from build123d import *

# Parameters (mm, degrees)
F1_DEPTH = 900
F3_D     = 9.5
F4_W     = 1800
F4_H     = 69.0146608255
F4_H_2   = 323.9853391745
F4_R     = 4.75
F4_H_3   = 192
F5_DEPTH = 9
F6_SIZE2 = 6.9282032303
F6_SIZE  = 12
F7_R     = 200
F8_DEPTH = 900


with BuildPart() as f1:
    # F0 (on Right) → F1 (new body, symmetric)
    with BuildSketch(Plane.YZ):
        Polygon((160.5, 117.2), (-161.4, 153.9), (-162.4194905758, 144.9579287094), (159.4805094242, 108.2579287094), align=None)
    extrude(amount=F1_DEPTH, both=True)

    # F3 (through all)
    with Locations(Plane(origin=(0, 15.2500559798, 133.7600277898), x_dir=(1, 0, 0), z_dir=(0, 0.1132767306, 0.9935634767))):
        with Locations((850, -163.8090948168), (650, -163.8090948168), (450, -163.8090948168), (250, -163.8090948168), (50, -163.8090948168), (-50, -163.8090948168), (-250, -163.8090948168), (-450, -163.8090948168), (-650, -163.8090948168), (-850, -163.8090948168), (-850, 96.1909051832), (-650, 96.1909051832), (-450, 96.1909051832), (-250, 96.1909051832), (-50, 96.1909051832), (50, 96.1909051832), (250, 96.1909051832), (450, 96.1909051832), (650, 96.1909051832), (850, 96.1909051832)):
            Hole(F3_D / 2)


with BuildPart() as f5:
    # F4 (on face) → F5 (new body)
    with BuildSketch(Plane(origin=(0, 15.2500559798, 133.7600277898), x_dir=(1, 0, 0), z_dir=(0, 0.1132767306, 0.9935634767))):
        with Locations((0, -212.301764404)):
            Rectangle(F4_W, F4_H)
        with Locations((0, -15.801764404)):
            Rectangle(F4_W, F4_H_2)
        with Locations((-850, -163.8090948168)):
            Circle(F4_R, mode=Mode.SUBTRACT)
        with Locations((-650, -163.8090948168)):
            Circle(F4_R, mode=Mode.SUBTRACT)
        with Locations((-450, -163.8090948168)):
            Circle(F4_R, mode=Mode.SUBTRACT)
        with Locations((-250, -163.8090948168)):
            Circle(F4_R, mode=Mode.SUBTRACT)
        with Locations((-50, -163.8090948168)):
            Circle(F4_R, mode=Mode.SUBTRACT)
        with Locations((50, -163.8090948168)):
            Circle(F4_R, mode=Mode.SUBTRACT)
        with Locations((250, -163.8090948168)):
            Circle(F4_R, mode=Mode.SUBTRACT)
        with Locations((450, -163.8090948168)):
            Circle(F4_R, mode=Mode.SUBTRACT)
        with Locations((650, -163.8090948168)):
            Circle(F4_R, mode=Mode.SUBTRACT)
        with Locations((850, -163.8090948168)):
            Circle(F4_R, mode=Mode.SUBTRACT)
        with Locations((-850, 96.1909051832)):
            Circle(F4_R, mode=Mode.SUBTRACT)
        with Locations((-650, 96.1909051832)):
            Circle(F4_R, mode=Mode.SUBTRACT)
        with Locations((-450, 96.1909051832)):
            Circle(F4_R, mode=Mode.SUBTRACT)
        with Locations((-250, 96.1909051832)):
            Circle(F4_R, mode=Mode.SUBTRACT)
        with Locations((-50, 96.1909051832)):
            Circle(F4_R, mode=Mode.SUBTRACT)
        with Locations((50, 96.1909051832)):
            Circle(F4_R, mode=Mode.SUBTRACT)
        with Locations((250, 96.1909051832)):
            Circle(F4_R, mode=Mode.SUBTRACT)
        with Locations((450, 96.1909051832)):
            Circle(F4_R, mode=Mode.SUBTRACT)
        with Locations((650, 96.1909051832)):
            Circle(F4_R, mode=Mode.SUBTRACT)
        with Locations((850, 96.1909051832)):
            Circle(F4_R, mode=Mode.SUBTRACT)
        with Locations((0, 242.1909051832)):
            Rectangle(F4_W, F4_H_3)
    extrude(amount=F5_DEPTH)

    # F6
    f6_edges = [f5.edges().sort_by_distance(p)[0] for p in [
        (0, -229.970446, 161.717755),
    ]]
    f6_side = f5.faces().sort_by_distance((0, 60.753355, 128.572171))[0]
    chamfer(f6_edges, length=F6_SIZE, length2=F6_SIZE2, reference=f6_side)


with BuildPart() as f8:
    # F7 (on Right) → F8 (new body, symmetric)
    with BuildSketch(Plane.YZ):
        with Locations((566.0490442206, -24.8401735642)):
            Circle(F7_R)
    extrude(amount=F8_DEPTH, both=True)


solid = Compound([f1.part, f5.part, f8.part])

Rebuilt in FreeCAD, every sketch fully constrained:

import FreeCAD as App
import Part
import Sketcher


def edges_at(feature, points):
    """Names of the edges that pass closest to the given points."""
    edges = feature.Shape.Edges
    near = lambda p: min(range(len(edges)), key=lambda i: edges[i].distToShape(Part.Vertex(*p))[0])
    return sorted({f"Edge{near(p) + 1}" for p in points})


def add_polygon(sketch, points):
    """Adds a closed chain of lines whose ends are joined by coincident constraints."""
    first, n = sketch.GeometryCount, len(points)
    for a, b in zip(points, points[1:] + points[:1]):
        sketch.addGeometry(Part.LineSegment(App.Vector(*a, 0), App.Vector(*b, 0)), False)
    for i in range(n):
        sketch.addConstraint(Sketcher.Constraint("Coincident", first + i, 2, first + (i + 1) % n, 1))

doc = App.newDocument("Part")
params = doc.addObject("Spreadsheet::Sheet", "Params")
for row, (alias, value) in enumerate([
    ("sketch1_length", "9 mm"),
    ("pad1_length", "1800 mm"),
    ("sketch2_diameter", "9.5 mm"),
    ("hole_diameter", "9.5 mm"),
    ("sketch3_diameter", "9.5 mm"),
    ("sketch3_width", "1800 mm"),
    ("sketch3_height", "585 mm"),
    ("pad2_length", "9 mm"),
    ("chamfer_size", "12 mm"),
    ("chamfer_size2", "6.928203 mm"),
    ("sketch4_diameter", "400 mm"),
    ("pad3_length", "1800 mm"),
], start=1):
    params.set(f"A{row}", alias)
    params.set(f"B{row}", "=" + value)
    params.setAlias(f"B{row}", alias)

body = doc.addObject("PartDesign::Body", "Body")

sketch1 = body.newObject("Sketcher::SketchObject", "Sketch")
sketch1.AttachmentSupport = (doc.getObject("YZ_Plane"), [""])
sketch1.MapMode = "FlatFace"
add_polygon(sketch1, [(160, 117), (-161, 154), (-162, 145), (159, 108)])
sketch1.addConstraint([
    Sketcher.Constraint("Perpendicular", 0, 1),
    Sketcher.Constraint("Perpendicular", 1, 2),
    Sketcher.Constraint("Perpendicular", 2, 3),
    Sketcher.Constraint("Distance", 1, 9.0),
    Sketcher.Constraint("DistanceX", 0, 2, -1, 1, 161.4),
    Sketcher.Constraint("DistanceY", -1, 1, 0, 2, 153.9),
    Sketcher.Constraint("DistanceX", -1, 1, 3, 2, 160.5),
    Sketcher.Constraint("DistanceY", -1, 1, 3, 2, 117.2),
])
sketch1.setExpression("Constraints[7]", "Params.sketch1_length")
pad1 = body.newObject("PartDesign::Pad", "Pad")
pad1.Profile = sketch1
pad1.setExpression("Length", "Params.pad1_length")
pad1.Midplane = True

sketch2 = body.newObject("Sketcher::SketchObject", "Sketch001")
sketch2.Placement = App.Placement(App.Vector(0, 15.250056, 133.760028), App.Rotation(App.Vector(1, 0, 0), App.Vector(0, 0.993563477, -0.113276731), App.Vector(0, 0.113276731, 0.993563477), "ZXY"))
sketch2.addGeometry([
    Part.Circle(App.Vector(850, -163.8, 0), App.Vector(0, 0, 1), 4.8),
    Part.Circle(App.Vector(650, -163.8, 0), App.Vector(0, 0, 1), 4.8),
    Part.Circle(App.Vector(450, -163.8, 0), App.Vector(0, 0, 1), 4.8),
    Part.Circle(App.Vector(250, -163.8, 0), App.Vector(0, 0, 1), 4.8),
    Part.Circle(App.Vector(50, -163.8, 0), App.Vector(0, 0, 1), 4.8),
    Part.Circle(App.Vector(-50, -163.8, 0), App.Vector(0, 0, 1), 4.8),
    Part.Circle(App.Vector(-250, -163.8, 0), App.Vector(0, 0, 1), 4.8),
    Part.Circle(App.Vector(-450, -163.8, 0), App.Vector(0, 0, 1), 4.8),
    Part.Circle(App.Vector(-650, -163.8, 0), App.Vector(0, 0, 1), 4.8),
    Part.Circle(App.Vector(-850, -163.8, 0), App.Vector(0, 0, 1), 4.8),
    Part.Circle(App.Vector(-850, 96.2, 0), App.Vector(0, 0, 1), 4.8),
    Part.Circle(App.Vector(-650, 96.2, 0), App.Vector(0, 0, 1), 4.8),
    Part.Circle(App.Vector(-450, 96.2, 0), App.Vector(0, 0, 1), 4.8),
    Part.Circle(App.Vector(-250, 96.2, 0), App.Vector(0, 0, 1), 4.8),
    Part.Circle(App.Vector(-50, 96.2, 0), App.Vector(0, 0, 1), 4.8),
    Part.Circle(App.Vector(50, 96.2, 0), App.Vector(0, 0, 1), 4.8),
    Part.Circle(App.Vector(250, 96.2, 0), App.Vector(0, 0, 1), 4.8),
    Part.Circle(App.Vector(450, 96.2, 0), App.Vector(0, 0, 1), 4.8),
    Part.Circle(App.Vector(650, 96.2, 0), App.Vector(0, 0, 1), 4.8),
    Part.Circle(App.Vector(850, 96.2, 0), App.Vector(0, 0, 1), 4.8),
], False)
sketch2.addConstraint([
    Sketcher.Constraint("Equal", 0, 1),
    Sketcher.Constraint("Equal", 1, 2),
    Sketcher.Constraint("Equal", 2, 3),
    Sketcher.Constraint("Equal", 3, 4),
    Sketcher.Constraint("Equal", 4, 5),
    Sketcher.Constraint("Equal", 5, 6),
    Sketcher.Constraint("Equal", 6, 7),
    Sketcher.Constraint("Equal", 7, 8),
    Sketcher.Constraint("Equal", 8, 9),
    Sketcher.Constraint("Equal", 9, 10),
    Sketcher.Constraint("Equal", 10, 11),
    Sketcher.Constraint("Equal", 11, 12),
    Sketcher.Constraint("Equal", 12, 13),
    Sketcher.Constraint("Equal", 13, 14),
    Sketcher.Constraint("Equal", 14, 15),
    Sketcher.Constraint("Equal", 15, 16),
    Sketcher.Constraint("Equal", 16, 17),
    Sketcher.Constraint("Equal", 17, 18),
    Sketcher.Constraint("Equal", 18, 19),
    Sketcher.Constraint("Symmetric", 4, 3, 5, 3, -2),
    Sketcher.Constraint("Symmetric", 3, 3, 6, 3, -2),
    Sketcher.Constraint("Symmetric", 2, 3, 7, 3, -2),
    Sketcher.Constraint("Symmetric", 1, 3, 8, 3, -2),
    Sketcher.Constraint("Symmetric", 0, 3, 9, 3, -2),
    Sketcher.Constraint("Symmetric", 14, 3, 15, 3, -2),
    Sketcher.Constraint("Symmetric", 13, 3, 16, 3, -2),
    Sketcher.Constraint("Symmetric", 12, 3, 17, 3, -2),
    Sketcher.Constraint("Symmetric", 11, 3, 18, 3, -2),
    Sketcher.Constraint("Symmetric", 10, 3, 19, 3, -2),
    Sketcher.Constraint("Horizontal", 0, 3, 1, 3),
    Sketcher.Constraint("Horizontal", 1, 3, 2, 3),
    Sketcher.Constraint("Horizontal", 2, 3, 3, 3),
    Sketcher.Constraint("Horizontal", 3, 3, 4, 3),
    Sketcher.Constraint("Horizontal", 10, 3, 11, 3),
    Sketcher.Constraint("Horizontal", 11, 3, 12, 3),
    Sketcher.Constraint("Horizontal", 12, 3, 13, 3),
    Sketcher.Constraint("Horizontal", 13, 3, 14, 3),
    Sketcher.Constraint("Vertical", 9, 3, 10, 3),
    Sketcher.Constraint("Vertical", 8, 3, 11, 3),
    Sketcher.Constraint("Vertical", 7, 3, 12, 3),
    Sketcher.Constraint("Vertical", 6, 3, 13, 3),
    Sketcher.Constraint("Vertical", 5, 3, 14, 3),
    Sketcher.Constraint("Diameter", 0, 9.5),
    Sketcher.Constraint("DistanceX", -1, 1, 0, 3, 850.0),
    Sketcher.Constraint("DistanceX", -1, 1, 1, 3, 650.0),
    Sketcher.Constraint("DistanceX", -1, 1, 2, 3, 450.0),
    Sketcher.Constraint("DistanceX", -1, 1, 3, 3, 250.0),
    Sketcher.Constraint("DistanceX", -1, 1, 4, 3, 50.0),
    Sketcher.Constraint("DistanceY", 9, 3, 10, 3, 260.0),
    Sketcher.Constraint("DistanceY", 0, 3, -1, 1, 163.809095),
])
sketch2.setExpression("Constraints[42]", "Params.sketch2_diameter")
doc.recompute()
hole = body.newObject("PartDesign::Hole", "Hole")
hole.Profile = sketch2
hole.ThreadType = "None"
hole.setExpression("Diameter", "Params.hole_diameter")
hole.DepthType = "ThroughAll"
body2 = doc.addObject("PartDesign::Body", "Body001")

sketch3 = body2.newObject("Sketcher::SketchObject", "Sketch002")
sketch3.Placement = App.Placement(App.Vector(0, 15.250056, 133.760028), App.Rotation(App.Vector(1, 0, 0), App.Vector(0, 0.993563477, -0.113276731), App.Vector(0, 0.113276731, 0.993563477), "ZXY"))
add_polygon(sketch3, [(-900, -246.8), (900, -246.8), (900, 338.2), (-900, 338.2)])
sketch3.addGeometry(Part.Circle(App.Vector(-850, -163.8, 0), App.Vector(0, 0, 1), 4.8), False)
sketch3.addGeometry(Part.Circle(App.Vector(-650, -163.8, 0), App.Vector(0, 0, 1), 4.8), False)
sketch3.addGeometry(Part.Circle(App.Vector(-450, -163.8, 0), App.Vector(0, 0, 1), 4.8), False)
sketch3.addGeometry(Part.Circle(App.Vector(-250, -163.8, 0), App.Vector(0, 0, 1), 4.8), False)
sketch3.addGeometry(Part.Circle(App.Vector(-50, -163.8, 0), App.Vector(0, 0, 1), 4.8), False)
sketch3.addGeometry(Part.Circle(App.Vector(50, -163.8, 0), App.Vector(0, 0, 1), 4.8), False)
sketch3.addGeometry(Part.Circle(App.Vector(250, -163.8, 0), App.Vector(0, 0, 1), 4.8), False)
sketch3.addGeometry(Part.Circle(App.Vector(450, -163.8, 0), App.Vector(0, 0, 1), 4.8), False)
sketch3.addGeometry(Part.Circle(App.Vector(650, -163.8, 0), App.Vector(0, 0, 1), 4.8), False)
sketch3.addGeometry(Part.Circle(App.Vector(850, -163.8, 0), App.Vector(0, 0, 1), 4.8), False)
sketch3.addGeometry(Part.Circle(App.Vector(-850, 96.2, 0), App.Vector(0, 0, 1), 4.8), False)
sketch3.addGeometry(Part.Circle(App.Vector(-650, 96.2, 0), App.Vector(0, 0, 1), 4.8), False)
sketch3.addGeometry(Part.Circle(App.Vector(-450, 96.2, 0), App.Vector(0, 0, 1), 4.8), False)
sketch3.addGeometry(Part.Circle(App.Vector(-250, 96.2, 0), App.Vector(0, 0, 1), 4.8), False)
sketch3.addGeometry(Part.Circle(App.Vector(-50, 96.2, 0), App.Vector(0, 0, 1), 4.8), False)
sketch3.addGeometry(Part.Circle(App.Vector(50, 96.2, 0), App.Vector(0, 0, 1), 4.8), False)
sketch3.addGeometry(Part.Circle(App.Vector(250, 96.2, 0), App.Vector(0, 0, 1), 4.8), False)
sketch3.addGeometry(Part.Circle(App.Vector(450, 96.2, 0), App.Vector(0, 0, 1), 4.8), False)
sketch3.addGeometry(Part.Circle(App.Vector(650, 96.2, 0), App.Vector(0, 0, 1), 4.8), False)
sketch3.addGeometry(Part.Circle(App.Vector(850, 96.2, 0), App.Vector(0, 0, 1), 4.8), False)
sketch3.addConstraint([
    Sketcher.Constraint("Horizontal", 0),
    Sketcher.Constraint("Vertical", 1),
    Sketcher.Constraint("Horizontal", 2),
    Sketcher.Constraint("Vertical", 3),
    Sketcher.Constraint("Equal", 4, 5),
    Sketcher.Constraint("Equal", 5, 6),
    Sketcher.Constraint("Equal", 6, 7),
    Sketcher.Constraint("Equal", 7, 8),
    Sketcher.Constraint("Equal", 8, 9),
    Sketcher.Constraint("Equal", 9, 10),
    Sketcher.Constraint("Equal", 10, 11),
    Sketcher.Constraint("Equal", 11, 12),
    Sketcher.Constraint("Equal", 12, 13),
    Sketcher.Constraint("Equal", 13, 14),
    Sketcher.Constraint("Equal", 14, 15),
    Sketcher.Constraint("Equal", 15, 16),
    Sketcher.Constraint("Equal", 16, 17),
    Sketcher.Constraint("Equal", 17, 18),
    Sketcher.Constraint("Equal", 18, 19),
    Sketcher.Constraint("Equal", 19, 20),
    Sketcher.Constraint("Equal", 20, 21),
    Sketcher.Constraint("Equal", 21, 22),
    Sketcher.Constraint("Equal", 22, 23),
    Sketcher.Constraint("Symmetric", 8, 3, 9, 3, -2),
    Sketcher.Constraint("Symmetric", 7, 3, 10, 3, -2),
    Sketcher.Constraint("Symmetric", 6, 3, 11, 3, -2),
    Sketcher.Constraint("Symmetric", 5, 3, 12, 3, -2),
    Sketcher.Constraint("Symmetric", 4, 3, 13, 3, -2),
    Sketcher.Constraint("Symmetric", 18, 3, 19, 3, -2),
    Sketcher.Constraint("Symmetric", 17, 3, 20, 3, -2),
    Sketcher.Constraint("Symmetric", 16, 3, 21, 3, -2),
    Sketcher.Constraint("Symmetric", 15, 3, 22, 3, -2),
    Sketcher.Constraint("Symmetric", 14, 3, 23, 3, -2),
    Sketcher.Constraint("Horizontal", 4, 3, 5, 3),
    Sketcher.Constraint("Horizontal", 5, 3, 6, 3),
    Sketcher.Constraint("Horizontal", 6, 3, 7, 3),
    Sketcher.Constraint("Horizontal", 7, 3, 8, 3),
    Sketcher.Constraint("Horizontal", 14, 3, 15, 3),
    Sketcher.Constraint("Horizontal", 15, 3, 16, 3),
    Sketcher.Constraint("Horizontal", 16, 3, 17, 3),
    Sketcher.Constraint("Horizontal", 17, 3, 18, 3),
    Sketcher.Constraint("Vertical", 4, 3, 14, 3),
    Sketcher.Constraint("Vertical", 5, 3, 15, 3),
    Sketcher.Constraint("Vertical", 6, 3, 16, 3),
    Sketcher.Constraint("Vertical", 7, 3, 17, 3),
    Sketcher.Constraint("Vertical", 8, 3, 18, 3),
    Sketcher.Constraint("Diameter", 4, 9.5),
    Sketcher.Constraint("DistanceX", 0, 1, 0, 2, 1800.0),
    Sketcher.Constraint("DistanceY", 1, 1, 1, 2, 585.0),
    Sketcher.Constraint("DistanceX", 4, 3, -1, 1, 850.0),
    Sketcher.Constraint("DistanceX", 5, 3, -1, 1, 650.0),
    Sketcher.Constraint("DistanceX", 6, 3, -1, 1, 450.0),
    Sketcher.Constraint("DistanceX", 7, 3, -1, 1, 250.0),
    Sketcher.Constraint("DistanceX", 8, 3, -1, 1, 50.0),
    Sketcher.Constraint("DistanceX", -1, 1, 0, 2, 900.0),
    Sketcher.Constraint("DistanceY", 4, 3, 14, 3, 260.0),
    Sketcher.Constraint("DistanceY", 0, 2, 13, 3, 83.0),
    Sketcher.Constraint("DistanceY", 4, 3, -1, 1, 163.809095),
])
sketch3.setExpression("Constraints[50]", "Params.sketch3_diameter")
sketch3.setExpression("Constraints[51]", "Params.sketch3_width")
sketch3.setExpression("Constraints[52]", "Params.sketch3_height")
pad2 = body2.newObject("PartDesign::Pad", "Pad001")
pad2.Profile = sketch3
pad2.setExpression("Length", "Params.pad2_length")
doc.recompute()

chamfer = body2.newObject("PartDesign::Chamfer", "Chamfer")
chamfer.Base = (pad2, edges_at(pad2, [(0, -229.97, 161.718)]))
chamfer.ChamferType = "Two distances"
chamfer.setExpression("Size", "Params.chamfer_size")
chamfer.setExpression("Size2", "Params.chamfer_size2")
chamfer.FlipDirection = True
body3 = doc.addObject("PartDesign::Body", "Body002")

sketch4 = body3.newObject("Sketcher::SketchObject", "Sketch003")
sketch4.AttachmentSupport = (doc.getObject("YZ_Plane002"), [""])
sketch4.MapMode = "FlatFace"
sketch4.addGeometry(Part.Circle(App.Vector(566, -25, 0), App.Vector(0, 0, 1), 200), False)
sketch4.addConstraint([
    Sketcher.Constraint("Diameter", 0, 400.0),
    Sketcher.Constraint("DistanceX", -1, 1, 0, 3, 566.049044),
    Sketcher.Constraint("DistanceY", 0, 3, -1, 1, 24.840174),
])
sketch4.setExpression("Constraints[0]", "Params.sketch4_diameter")
pad3 = body3.newObject("PartDesign::Pad", "Pad002")
pad3.Profile = sketch4
pad3.setExpression("Length", "Params.pad3_length")
pad3.Midplane = True

doc.recompute()
